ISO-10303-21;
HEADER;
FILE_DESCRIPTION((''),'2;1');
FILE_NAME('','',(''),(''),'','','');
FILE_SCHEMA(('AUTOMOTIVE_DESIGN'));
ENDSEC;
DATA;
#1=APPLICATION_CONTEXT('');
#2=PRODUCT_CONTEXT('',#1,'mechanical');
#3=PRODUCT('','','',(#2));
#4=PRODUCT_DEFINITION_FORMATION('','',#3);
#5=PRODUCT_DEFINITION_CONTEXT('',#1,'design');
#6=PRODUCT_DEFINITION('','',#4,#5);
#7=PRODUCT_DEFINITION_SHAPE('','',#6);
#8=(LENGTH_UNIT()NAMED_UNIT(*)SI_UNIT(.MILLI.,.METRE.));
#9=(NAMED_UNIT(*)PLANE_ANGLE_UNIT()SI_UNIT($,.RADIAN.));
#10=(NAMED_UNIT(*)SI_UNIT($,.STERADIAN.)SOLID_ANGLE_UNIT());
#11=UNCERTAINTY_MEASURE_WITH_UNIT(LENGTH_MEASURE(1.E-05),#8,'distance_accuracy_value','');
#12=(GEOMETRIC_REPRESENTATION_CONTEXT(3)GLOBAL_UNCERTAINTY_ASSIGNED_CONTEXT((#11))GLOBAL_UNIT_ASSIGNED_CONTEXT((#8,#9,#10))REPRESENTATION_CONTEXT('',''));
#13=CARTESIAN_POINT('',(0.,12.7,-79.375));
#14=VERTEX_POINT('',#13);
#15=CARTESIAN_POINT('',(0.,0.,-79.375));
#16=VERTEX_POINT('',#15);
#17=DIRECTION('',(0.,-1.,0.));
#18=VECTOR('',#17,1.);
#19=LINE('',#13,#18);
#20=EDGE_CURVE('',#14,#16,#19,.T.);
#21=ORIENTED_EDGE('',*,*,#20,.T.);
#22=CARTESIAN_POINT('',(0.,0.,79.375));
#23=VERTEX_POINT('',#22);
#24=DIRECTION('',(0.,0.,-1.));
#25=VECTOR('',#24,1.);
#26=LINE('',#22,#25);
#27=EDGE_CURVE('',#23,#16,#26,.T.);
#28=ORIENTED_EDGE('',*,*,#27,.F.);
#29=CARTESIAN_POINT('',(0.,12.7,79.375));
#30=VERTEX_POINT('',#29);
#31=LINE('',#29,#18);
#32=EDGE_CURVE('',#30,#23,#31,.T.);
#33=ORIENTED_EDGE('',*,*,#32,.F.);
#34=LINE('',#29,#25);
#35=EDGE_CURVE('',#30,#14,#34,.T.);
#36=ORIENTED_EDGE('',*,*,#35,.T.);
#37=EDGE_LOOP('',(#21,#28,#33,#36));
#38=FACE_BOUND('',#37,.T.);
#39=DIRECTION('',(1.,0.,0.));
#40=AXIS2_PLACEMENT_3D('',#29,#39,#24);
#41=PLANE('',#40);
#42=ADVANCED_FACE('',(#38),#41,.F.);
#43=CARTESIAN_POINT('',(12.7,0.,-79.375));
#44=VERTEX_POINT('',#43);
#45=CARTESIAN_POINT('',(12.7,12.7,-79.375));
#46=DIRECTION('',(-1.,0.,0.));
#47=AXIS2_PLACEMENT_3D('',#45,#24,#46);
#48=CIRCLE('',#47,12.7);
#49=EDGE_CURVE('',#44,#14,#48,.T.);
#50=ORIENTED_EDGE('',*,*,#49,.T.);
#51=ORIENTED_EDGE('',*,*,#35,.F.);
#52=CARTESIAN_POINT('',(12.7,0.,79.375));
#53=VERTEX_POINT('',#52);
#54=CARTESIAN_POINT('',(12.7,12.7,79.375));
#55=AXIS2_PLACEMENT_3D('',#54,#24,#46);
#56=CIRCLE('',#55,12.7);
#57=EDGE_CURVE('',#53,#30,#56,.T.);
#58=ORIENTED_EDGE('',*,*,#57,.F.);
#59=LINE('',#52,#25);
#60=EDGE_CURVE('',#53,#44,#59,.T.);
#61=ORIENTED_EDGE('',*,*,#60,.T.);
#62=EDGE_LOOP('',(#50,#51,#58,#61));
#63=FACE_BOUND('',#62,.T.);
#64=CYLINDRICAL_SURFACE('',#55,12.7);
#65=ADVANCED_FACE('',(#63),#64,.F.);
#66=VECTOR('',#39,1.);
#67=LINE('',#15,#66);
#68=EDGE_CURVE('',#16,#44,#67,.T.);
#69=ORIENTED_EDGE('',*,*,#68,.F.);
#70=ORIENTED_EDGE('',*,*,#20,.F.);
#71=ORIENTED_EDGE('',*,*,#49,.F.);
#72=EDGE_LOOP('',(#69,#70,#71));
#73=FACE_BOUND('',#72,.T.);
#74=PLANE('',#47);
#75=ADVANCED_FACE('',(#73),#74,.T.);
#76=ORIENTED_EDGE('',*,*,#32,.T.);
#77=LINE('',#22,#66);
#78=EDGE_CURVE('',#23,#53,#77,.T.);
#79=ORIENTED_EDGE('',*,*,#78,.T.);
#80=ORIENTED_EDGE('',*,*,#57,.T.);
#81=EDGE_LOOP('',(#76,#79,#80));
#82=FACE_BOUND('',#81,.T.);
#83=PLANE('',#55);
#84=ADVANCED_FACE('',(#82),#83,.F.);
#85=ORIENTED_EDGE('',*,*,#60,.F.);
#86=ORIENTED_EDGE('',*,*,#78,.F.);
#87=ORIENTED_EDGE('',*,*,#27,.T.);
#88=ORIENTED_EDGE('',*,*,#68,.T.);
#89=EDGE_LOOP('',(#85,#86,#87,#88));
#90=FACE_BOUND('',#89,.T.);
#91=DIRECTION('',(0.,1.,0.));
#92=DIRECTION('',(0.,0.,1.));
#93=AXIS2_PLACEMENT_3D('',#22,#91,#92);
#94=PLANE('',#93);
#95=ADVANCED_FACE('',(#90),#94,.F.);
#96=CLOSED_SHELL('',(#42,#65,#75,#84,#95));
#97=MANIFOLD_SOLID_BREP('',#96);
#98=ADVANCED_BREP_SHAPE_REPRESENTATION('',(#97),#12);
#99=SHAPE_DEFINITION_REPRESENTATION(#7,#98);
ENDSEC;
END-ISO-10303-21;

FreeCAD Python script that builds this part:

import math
import FreeCAD as App
import Part
import Sketcher
Q = App.Units.Quantity

doc = App.newDocument("Part")
body = doc.addObject("PartDesign::Body", "Body")

sketch1 = body.newObject("Sketcher::SketchObject", "Sketch")
sketch1.AttachmentSupport = (doc.getObject("XY_Plane"), [""])
sketch1.MapMode = "FlatFace"
sketch1.addGeometry([
    Part.LineSegment(App.Vector(0, 13, 0), App.Vector(0, 0, 0)),
    Part.LineSegment(App.Vector(0, 0, 0), App.Vector(13, 0, 0)),
    Part.ArcOfCircle(Part.Circle(App.Vector(13, 13, 0), App.Vector(0, 0, 1), 13), math.radians(180), math.radians(270)),
], False)
sketch1.addConstraint([
    Sketcher.Constraint("Coincident", 0, 2, 1, 1),
    Sketcher.Constraint("Tangent", 1, 2, 2, 2),
    Sketcher.Constraint("Tangent", 2, 1, 0, 1),
    Sketcher.Constraint("Vertical", 0),
    Sketcher.Constraint("Horizontal", 1),
    Sketcher.Constraint("Coincident", 0, 2, -1, 1),
    Sketcher.Constraint("Radius", 2, Q("0.5 in")),
])
pad1 = body.newObject("PartDesign::Pad", "Pad")
pad1.Profile = sketch1
pad1.Length = Q("6.25 in")
pad1.Midplane = True

doc.recompute()
